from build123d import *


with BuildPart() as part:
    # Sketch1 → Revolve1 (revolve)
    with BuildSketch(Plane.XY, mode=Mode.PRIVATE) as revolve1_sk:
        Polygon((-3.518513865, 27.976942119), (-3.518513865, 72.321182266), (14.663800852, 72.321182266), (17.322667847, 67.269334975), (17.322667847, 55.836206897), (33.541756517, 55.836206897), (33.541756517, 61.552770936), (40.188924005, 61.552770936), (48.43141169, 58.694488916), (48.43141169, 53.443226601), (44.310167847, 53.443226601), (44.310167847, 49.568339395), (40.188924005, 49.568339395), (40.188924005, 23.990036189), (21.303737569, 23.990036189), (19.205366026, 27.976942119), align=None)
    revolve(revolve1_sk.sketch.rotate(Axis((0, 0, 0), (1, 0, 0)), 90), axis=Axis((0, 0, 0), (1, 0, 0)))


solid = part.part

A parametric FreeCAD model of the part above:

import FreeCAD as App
import Part
import Sketcher
from FreeCAD import Vector

doc = App.newDocument("Part")
body = doc.addObject("PartDesign::Body", "Body")

# Sketch on XY plane
sketch1 = body.newObject("Sketcher::SketchObject", "Sketch")
sketch1.AttachmentSupport = (doc.getObject("XY_Plane"), [""])
sketch1.MapMode = "FlatFace"
sketch1.addGeometry(Part.LineSegment(Vector(-3.518514, 72.321182, 0), Vector(-3.518514, 27.976942, 0)), False)
sketch1.addGeometry(Part.LineSegment(Vector(-3.518514, 27.976942, 0), Vector(19.205366, 27.976942, 0)), False)
sketch1.addGeometry(Part.LineSegment(Vector(19.205366, 27.976942, 0), Vector(21.303738, 23.990036, 0)), False)
sketch1.addGeometry(Part.LineSegment(Vector(21.303738, 23.990036, 0), Vector(40.188924, 23.990036, 0)), False)
sketch1.addGeometry(Part.LineSegment(Vector(40.188924, 23.990036, 0), Vector(40.188924, 49.568339, 0)), False)
sketch1.addGeometry(Part.LineSegment(Vector(40.188924, 49.568339, 0), Vector(44.310168, 49.568339, 0)), False)
sketch1.addGeometry(Part.LineSegment(Vector(44.310168, 49.568339, 0), Vector(44.310168, 53.443227, 0)), False)
sketch1.addGeometry(Part.LineSegment(Vector(44.310168, 53.443227, 0), Vector(48.431412, 53.443227, 0)), False)
sketch1.addGeometry(Part.LineSegment(Vector(48.431412, 53.443227, 0), Vector(48.431412, 58.694489, 0)), False)
sketch1.addGeometry(Part.LineSegment(Vector(48.431412, 58.694489, 0), Vector(40.188924, 61.552771, 0)), False)
sketch1.addGeometry(Part.LineSegment(Vector(40.188924, 61.552771, 0), Vector(33.541757, 61.552771, 0)), False)
sketch1.addGeometry(Part.LineSegment(Vector(33.541757, 61.552771, 0), Vector(33.541757, 55.836207, 0)), False)
sketch1.addGeometry(Part.LineSegment(Vector(33.541757, 55.836207, 0), Vector(17.322668, 55.836207, 0)), False)
sketch1.addGeometry(Part.LineSegment(Vector(17.322668, 55.836207, 0), Vector(17.322668, 67.269335, 0)), False)
sketch1.addGeometry(Part.LineSegment(Vector(17.322668, 67.269335, 0), Vector(14.663801, 72.321182, 0)), False)
sketch1.addGeometry(Part.LineSegment(Vector(14.663801, 72.321182, 0), Vector(-3.518514, 72.321182, 0)), False)
sketch1.addConstraint(Sketcher.Constraint("Coincident", 0, 2, 1, 1))
sketch1.addConstraint(Sketcher.Constraint("Coincident", 1, 2, 2, 1))
sketch1.addConstraint(Sketcher.Constraint("Coincident", 2, 2, 3, 1))
sketch1.addConstraint(Sketcher.Constraint("Coincident", 3, 2, 4, 1))
sketch1.addConstraint(Sketcher.Constraint("Coincident", 4, 2, 5, 1))
sketch1.addConstraint(Sketcher.Constraint("Coincident", 5, 2, 6, 1))
sketch1.addConstraint(Sketcher.Constraint("Coincident", 6, 2, 7, 1))
sketch1.addConstraint(Sketcher.Constraint("Coincident", 7, 2, 8, 1))
sketch1.addConstraint(Sketcher.Constraint("Coincident", 8, 2, 9, 1))
sketch1.addConstraint(Sketcher.Constraint("Coincident", 9, 2, 10, 1))
sketch1.addConstraint(Sketcher.Constraint("Coincident", 10, 2, 11, 1))
sketch1.addConstraint(Sketcher.Constraint("Coincident", 11, 2, 12, 1))
sketch1.addConstraint(Sketcher.Constraint("Coincident", 12, 2, 13, 1))
sketch1.addConstraint(Sketcher.Constraint("Coincident", 13, 2, 14, 1))
sketch1.addConstraint(Sketcher.Constraint("Coincident", 14, 2, 15, 1))
sketch1.addConstraint(Sketcher.Constraint("Coincident", 15, 2, 0, 1))
sketch1.addConstraint(Sketcher.Constraint("Vertical", 0))
sketch1.addConstraint(Sketcher.Constraint("Horizontal", 1))
sketch1.addConstraint(Sketcher.Constraint("Horizontal", 3))
sketch1.addConstraint(Sketcher.Constraint("Vertical", 4))
sketch1.addConstraint(Sketcher.Constraint("Horizontal", 5))
sketch1.addConstraint(Sketcher.Constraint("Vertical", 6))
sketch1.addConstraint(Sketcher.Constraint("Horizontal", 7))
sketch1.addConstraint(Sketcher.Constraint("Vertical", 8))
sketch1.addConstraint(Sketcher.Constraint("Horizontal", 10))
sketch1.addConstraint(Sketcher.Constraint("Vertical", 11))
sketch1.addConstraint(Sketcher.Constraint("Horizontal", 12))
sketch1.addConstraint(Sketcher.Constraint("Vertical", 13))
sketch1.addConstraint(Sketcher.Constraint("Horizontal", 15))
sketch1.addConstraint(Sketcher.Constraint("Parallel", 2, 14))
sketch1.addConstraint(Sketcher.Constraint("Vertical", 4, 2, 9, 2))
sketch1.addConstraint(Sketcher.Constraint("Equal", 5, 7))
sketch1.addConstraint(Sketcher.Constraint("DistanceX", 1, 1, 1, 2, 22.72388))
sketch1.addConstraint(Sketcher.Constraint("DistanceX", 12, 2, 12, 1, 16.219089))
sketch1.addConstraint(Sketcher.Constraint("DistanceY", 0, 2, 0, 1, 44.34424))
sketch1.addConstraint(Sketcher.Constraint("DistanceY", 13, 1, 13, 2, 11.433128))
sketch1.addConstraint(Sketcher.Constraint("DistanceX", -1, 1, 14, 2, 14.663801))
sketch1.addConstraint(Sketcher.Constraint("DistanceX", 1, 2, 5, 2, 25.104802))
sketch1.addConstraint(Sketcher.Constraint("DistanceX", 12, 2, 6, 2, 26.9875))
sketch1.addConstraint(Sketcher.Constraint("Distance", 9, 8.724012))
sketch1.addConstraint(Sketcher.Constraint("Distance", 14, 5.70883))
sketch1.addConstraint(Sketcher.Constraint("DistanceX", 3, 1, 3, 2, 18.885186))
sketch1.addConstraint(Sketcher.Constraint("DistanceX", 5, 1, 5, 2, 4.121244))
sketch1.addConstraint(Sketcher.Constraint("DistanceX", 15, 2, 15, 1, 18.182315))
sketch1.addConstraint(Sketcher.Constraint("DistanceY", 4, 1, 4, 2, 25.578303))
sketch1.addConstraint(Sketcher.Constraint("DistanceY", 6, 1, 6, 2, 3.874887))
sketch1.addConstraint(Sketcher.Constraint("DistanceY", 8, 1, 8, 2, 5.251262))
sketch1.addConstraint(Sketcher.Constraint("DistanceY", -1, 1, 4, 2, 49.568339))
revolution = body.newObject("PartDesign::Revolution", "Revolution")
revolution.Profile = sketch1
revolution.ReferenceAxis = (sketch1, ["H_Axis"])
revolution.Angle = 360

doc.recompute()
